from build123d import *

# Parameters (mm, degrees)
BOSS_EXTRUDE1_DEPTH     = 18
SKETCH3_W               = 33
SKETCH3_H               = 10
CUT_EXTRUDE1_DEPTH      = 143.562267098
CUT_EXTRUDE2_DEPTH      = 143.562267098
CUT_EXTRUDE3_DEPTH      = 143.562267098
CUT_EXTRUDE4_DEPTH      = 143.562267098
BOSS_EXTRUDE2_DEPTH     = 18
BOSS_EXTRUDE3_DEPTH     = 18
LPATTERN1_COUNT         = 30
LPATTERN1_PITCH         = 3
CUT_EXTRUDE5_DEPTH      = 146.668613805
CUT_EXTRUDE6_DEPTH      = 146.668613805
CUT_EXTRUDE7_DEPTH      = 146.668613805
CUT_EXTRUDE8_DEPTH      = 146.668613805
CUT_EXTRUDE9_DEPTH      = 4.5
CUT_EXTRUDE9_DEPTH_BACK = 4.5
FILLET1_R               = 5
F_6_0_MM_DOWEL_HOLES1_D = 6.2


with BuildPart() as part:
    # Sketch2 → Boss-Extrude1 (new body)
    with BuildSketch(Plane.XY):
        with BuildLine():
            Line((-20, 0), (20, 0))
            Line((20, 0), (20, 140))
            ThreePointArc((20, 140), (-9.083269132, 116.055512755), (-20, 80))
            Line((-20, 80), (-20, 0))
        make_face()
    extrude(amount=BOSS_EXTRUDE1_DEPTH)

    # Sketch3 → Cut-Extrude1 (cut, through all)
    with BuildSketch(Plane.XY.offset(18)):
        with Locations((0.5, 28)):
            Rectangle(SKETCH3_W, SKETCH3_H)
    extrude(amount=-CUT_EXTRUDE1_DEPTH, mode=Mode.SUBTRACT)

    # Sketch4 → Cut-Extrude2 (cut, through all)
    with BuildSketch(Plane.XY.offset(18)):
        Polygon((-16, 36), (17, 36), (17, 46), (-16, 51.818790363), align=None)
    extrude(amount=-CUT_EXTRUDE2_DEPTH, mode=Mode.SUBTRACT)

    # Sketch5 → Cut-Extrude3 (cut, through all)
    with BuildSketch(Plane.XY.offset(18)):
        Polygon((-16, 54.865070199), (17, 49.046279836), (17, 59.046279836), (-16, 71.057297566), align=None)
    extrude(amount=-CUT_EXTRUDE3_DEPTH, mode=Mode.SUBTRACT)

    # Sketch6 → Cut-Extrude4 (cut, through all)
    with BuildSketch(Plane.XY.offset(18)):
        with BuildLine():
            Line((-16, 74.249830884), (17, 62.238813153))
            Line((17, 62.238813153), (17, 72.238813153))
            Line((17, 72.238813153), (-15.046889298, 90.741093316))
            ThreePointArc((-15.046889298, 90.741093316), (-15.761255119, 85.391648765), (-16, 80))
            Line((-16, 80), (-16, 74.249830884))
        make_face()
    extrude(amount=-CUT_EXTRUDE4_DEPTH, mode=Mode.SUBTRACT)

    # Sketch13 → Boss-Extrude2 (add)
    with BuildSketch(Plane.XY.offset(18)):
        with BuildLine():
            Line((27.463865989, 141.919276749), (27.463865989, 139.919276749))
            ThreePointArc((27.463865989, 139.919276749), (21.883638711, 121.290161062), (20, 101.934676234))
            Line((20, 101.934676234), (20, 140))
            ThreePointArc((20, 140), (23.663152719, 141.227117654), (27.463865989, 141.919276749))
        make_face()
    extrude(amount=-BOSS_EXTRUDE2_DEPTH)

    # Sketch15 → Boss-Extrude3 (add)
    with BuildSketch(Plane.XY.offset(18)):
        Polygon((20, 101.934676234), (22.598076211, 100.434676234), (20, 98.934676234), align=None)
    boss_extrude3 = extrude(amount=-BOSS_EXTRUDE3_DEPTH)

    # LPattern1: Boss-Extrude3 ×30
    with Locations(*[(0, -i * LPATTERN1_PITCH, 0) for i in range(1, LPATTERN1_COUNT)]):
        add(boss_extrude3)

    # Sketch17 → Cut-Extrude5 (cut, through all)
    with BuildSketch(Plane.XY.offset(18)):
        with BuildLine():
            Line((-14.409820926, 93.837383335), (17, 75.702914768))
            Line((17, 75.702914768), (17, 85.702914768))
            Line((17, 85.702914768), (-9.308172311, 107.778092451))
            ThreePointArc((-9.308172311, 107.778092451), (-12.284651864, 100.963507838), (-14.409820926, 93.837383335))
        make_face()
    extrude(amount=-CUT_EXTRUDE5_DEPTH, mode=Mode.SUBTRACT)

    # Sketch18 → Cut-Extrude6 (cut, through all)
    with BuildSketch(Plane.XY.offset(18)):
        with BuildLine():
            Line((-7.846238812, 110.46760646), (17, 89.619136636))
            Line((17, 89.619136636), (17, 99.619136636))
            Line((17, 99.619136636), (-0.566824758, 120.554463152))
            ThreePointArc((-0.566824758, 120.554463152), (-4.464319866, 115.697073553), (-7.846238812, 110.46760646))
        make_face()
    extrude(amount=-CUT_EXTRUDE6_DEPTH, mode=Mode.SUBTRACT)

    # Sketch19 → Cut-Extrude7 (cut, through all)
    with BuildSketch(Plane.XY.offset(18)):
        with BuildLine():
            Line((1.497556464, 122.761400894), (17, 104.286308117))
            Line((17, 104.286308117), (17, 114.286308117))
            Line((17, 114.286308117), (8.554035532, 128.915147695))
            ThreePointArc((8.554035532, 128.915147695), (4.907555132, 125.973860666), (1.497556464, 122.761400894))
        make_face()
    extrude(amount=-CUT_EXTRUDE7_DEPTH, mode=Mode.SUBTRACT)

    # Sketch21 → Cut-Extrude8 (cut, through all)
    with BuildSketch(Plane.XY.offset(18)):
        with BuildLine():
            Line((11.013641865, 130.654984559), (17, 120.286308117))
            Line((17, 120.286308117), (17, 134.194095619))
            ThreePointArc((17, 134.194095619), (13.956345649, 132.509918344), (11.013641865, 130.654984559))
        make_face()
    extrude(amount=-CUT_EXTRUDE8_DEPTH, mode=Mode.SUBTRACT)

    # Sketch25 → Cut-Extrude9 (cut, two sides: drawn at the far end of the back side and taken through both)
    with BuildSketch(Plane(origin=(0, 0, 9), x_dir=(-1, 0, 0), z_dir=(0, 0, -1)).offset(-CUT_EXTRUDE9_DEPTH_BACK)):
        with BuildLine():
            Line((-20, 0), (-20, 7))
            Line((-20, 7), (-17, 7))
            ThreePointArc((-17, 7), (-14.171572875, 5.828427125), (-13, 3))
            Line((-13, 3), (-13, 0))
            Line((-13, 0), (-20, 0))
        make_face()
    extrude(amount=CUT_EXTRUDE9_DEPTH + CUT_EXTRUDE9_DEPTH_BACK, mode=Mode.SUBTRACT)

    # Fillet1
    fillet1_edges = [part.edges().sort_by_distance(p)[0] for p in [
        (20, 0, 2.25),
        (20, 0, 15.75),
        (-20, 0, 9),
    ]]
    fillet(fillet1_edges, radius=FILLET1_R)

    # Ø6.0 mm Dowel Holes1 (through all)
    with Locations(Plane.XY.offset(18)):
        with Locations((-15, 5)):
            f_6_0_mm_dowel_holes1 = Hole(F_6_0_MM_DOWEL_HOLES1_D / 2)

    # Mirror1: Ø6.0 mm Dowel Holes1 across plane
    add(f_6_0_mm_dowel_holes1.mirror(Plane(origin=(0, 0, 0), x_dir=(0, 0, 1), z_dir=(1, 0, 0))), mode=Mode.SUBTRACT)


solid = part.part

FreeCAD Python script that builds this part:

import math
import FreeCAD as App
import Part
import Sketcher

V = App.Vector
Q = App.Units.Quantity


def edges_at(feature, points):
    """Names of the edges that pass closest to the given points."""
    edges = feature.Shape.Edges
    near = lambda p: min(range(len(edges)), key=lambda i: edges[i].distToShape(Part.Vertex(*p))[0])
    return sorted({f"Edge{near(p) + 1}" for p in points})

doc = App.newDocument("Part")
body = doc.addObject("PartDesign::Body", "Body")

# Sketch on XY plane
sketch1 = body.newObject("Sketcher::SketchObject", "Sketch")
sketch1.AttachmentSupport = (doc.getObject("XY_Plane"), [""])
sketch1.MapMode = "FlatFace"
sketch1.addGeometry(Part.LineSegment(V(-20, 0, 0), V(20, 0, 0)), False)
sketch1.addGeometry(Part.LineSegment(V(20, 0, 0), V(20, 140, 0)), False)
sketch1.addGeometry(Part.ArcOfCircle(Part.Circle(V(45, 80, 0), V(0, 0, 1), 65), math.radians(113), math.radians(180)), False)
sketch1.addGeometry(Part.LineSegment(V(-20, 80, 0), V(-20, 0, 0)), False)
sketch1.addConstraint(Sketcher.Constraint("Coincident", 0, 2, 1, 1))
sketch1.addConstraint(Sketcher.Constraint("Coincident", 1, 2, 2, 1))
sketch1.addConstraint(Sketcher.Constraint("Tangent", 2, 2, 3, 1))
sketch1.addConstraint(Sketcher.Constraint("Coincident", 3, 2, 0, 1))
sketch1.addConstraint(Sketcher.Constraint("Horizontal", 0))
sketch1.addConstraint(Sketcher.Constraint("Vertical", 1))
sketch1.addConstraint(Sketcher.Constraint("Vertical", 3))
sketch1.addConstraint(Sketcher.Constraint("Symmetric", 0, 2, 3, 2, -1, 1))
sketch1.addConstraint(Sketcher.Constraint("Radius", 2, Q("65 mm")))
sketch1.addConstraint(Sketcher.Constraint("DistanceX", 0, 1, 0, 2, Q("40 mm")))
sketch1.addConstraint(Sketcher.Constraint("DistanceY", 1, 1, 1, 2, Q("140 mm")))
pad1 = body.newObject("PartDesign::Pad", "Pad")
pad1.Profile = sketch1
pad1.Length = 18

# Sketch on XY plane
sketch2 = body.newObject("Sketcher::SketchObject", "Sketch001")
sketch2.AttachmentSupport = (doc.getObject("XY_Plane"), [""])
sketch2.MapMode = "FlatFace"
sketch2.AttachmentOffset = App.Placement(V(0, 0, 18), App.Rotation())
sketch2.addGeometry(Part.LineSegment(V(-16, 33, 0), V(-16, 23, 0)), False)
sketch2.addGeometry(Part.LineSegment(V(-16, 23, 0), V(17, 23, 0)), False)
sketch2.addGeometry(Part.LineSegment(V(17, 23, 0), V(17, 33, 0)), False)
sketch2.addGeometry(Part.LineSegment(V(17, 33, 0), V(-16, 33, 0)), False)
sketch2.addConstraint(Sketcher.Constraint("Coincident", 0, 2, 1, 1))
sketch2.addConstraint(Sketcher.Constraint("Coincident", 1, 2, 2, 1))
sketch2.addConstraint(Sketcher.Constraint("Coincident", 2, 2, 3, 1))
sketch2.addConstraint(Sketcher.Constraint("Coincident", 3, 2, 0, 1))
sketch2.addConstraint(Sketcher.Constraint("Vertical", 0))
sketch2.addConstraint(Sketcher.Constraint("Horizontal", 1))
sketch2.addConstraint(Sketcher.Constraint("Vertical", 2))
sketch2.addConstraint(Sketcher.Constraint("Horizontal", 3))
sketch2.addConstraint(Sketcher.Constraint("DistanceX", 1, 1, 1, 2, Q("33 mm")))
sketch2.addConstraint(Sketcher.Constraint("DistanceY", 0, 2, 0, 1, Q("10 mm")))
sketch2.addConstraint(Sketcher.Constraint("DistanceX", 0, 2, -1, 1, Q("16 mm")))
sketch2.addConstraint(Sketcher.Constraint("DistanceY", -1, 1, 0, 2, Q("23 mm")))
pocket1 = body.newObject("PartDesign::Pocket", "Pocket")
pocket1.Profile = sketch2
pocket1.Type = "ThroughAll"

# Sketch on XY plane
sketch3 = body.newObject("Sketcher::SketchObject", "Sketch002")
sketch3.AttachmentSupport = (doc.getObject("XY_Plane"), [""])
sketch3.MapMode = "FlatFace"
sketch3.AttachmentOffset = App.Placement(V(0, 0, 18), App.Rotation())
sketch3.addGeometry(Part.LineSegment(V(-16, 36, 0), V(17, 36, 0)), False)
sketch3.addGeometry(Part.LineSegment(V(17, 36, 0), V(17, 46, 0)), False)
sketch3.addGeometry(Part.LineSegment(V(17, 46, 0), V(-16, 52, 0)), False)
sketch3.addGeometry(Part.LineSegment(V(-16, 52, 0), V(-16, 36, 0)), False)
sketch3.addConstraint(Sketcher.Constraint("Coincident", 0, 2, 1, 1))
sketch3.addConstraint(Sketcher.Constraint("Coincident", 1, 2, 2, 1))
sketch3.addConstraint(Sketcher.Constraint("Coincident", 2, 2, 3, 1))
sketch3.addConstraint(Sketcher.Constraint("Coincident", 3, 2, 0, 1))
sketch3.addConstraint(Sketcher.Constraint("Horizontal", 0))
sketch3.addConstraint(Sketcher.Constraint("Vertical", 1))
sketch3.addConstraint(Sketcher.Constraint("Vertical", 3))
sketch3.addConstraint(Sketcher.Constraint("DistanceX", 0, 1, 0, 2, Q("33 mm")))
sketch3.addConstraint(Sketcher.Constraint("DistanceY", 1, 1, 1, 2, Q("10 mm")))
sketch3.addConstraint(Sketcher.Constraint("Angle", 2, Q("170 deg")))
sketch3.addConstraint(Sketcher.Constraint("DistanceX", -1, 1, 0, 2, Q("17 mm")))
sketch3.addConstraint(Sketcher.Constraint("DistanceY", -1, 1, 0, 2, Q("36 mm")))
pocket2 = body.newObject("PartDesign::Pocket", "Pocket001")
pocket2.Profile = sketch3
pocket2.Type = "ThroughAll"

# Sketch on XY plane
sketch4 = body.newObject("Sketcher::SketchObject", "Sketch003")
sketch4.AttachmentSupport = (doc.getObject("XY_Plane"), [""])
sketch4.MapMode = "FlatFace"
sketch4.AttachmentOffset = App.Placement(V(0, 0, 18), App.Rotation())
sketch4.addGeometry(Part.LineSegment(V(-16, 55, 0), V(17, 49, 0)), False)
sketch4.addGeometry(Part.LineSegment(V(17, 49, 0), V(17, 59, 0)), False)
sketch4.addGeometry(Part.LineSegment(V(17, 59, 0), V(-16, 71, 0)), False)
sketch4.addGeometry(Part.LineSegment(V(-16, 71, 0), V(-16, 55, 0)), False)
sketch4.addConstraint(Sketcher.Constraint("Coincident", 0, 2, 1, 1))
sketch4.addConstraint(Sketcher.Constraint("Coincident", 1, 2, 2, 1))
sketch4.addConstraint(Sketcher.Constraint("Coincident", 2, 2, 3, 1))
sketch4.addConstraint(Sketcher.Constraint("Coincident", 3, 2, 0, 1))
sketch4.addConstraint(Sketcher.Constraint("Vertical", 1))
sketch4.addConstraint(Sketcher.Constraint("Vertical", 3))
sketch4.addConstraint(Sketcher.Constraint("DistanceY", 1, 1, 1, 2, Q("10 mm")))
sketch4.addConstraint(Sketcher.Constraint("Angle", 0, Q("-10 deg")))
sketch4.addConstraint(Sketcher.Constraint("Angle", 2, Q("160 deg")))
sketch4.addConstraint(Sketcher.Constraint("DistanceX", -1, 1, 0, 2, Q("17 mm")))
sketch4.addConstraint(Sketcher.Constraint("DistanceX", 2, 2, -1, 1, Q("16 mm")))
sketch4.addConstraint(Sketcher.Constraint("DistanceY", -1, 1, 0, 2, Q("49.04628 mm")))
pocket3 = body.newObject("PartDesign::Pocket", "Pocket002")
pocket3.Profile = sketch4
pocket3.Type = "ThroughAll"

# Sketch on XY plane
sketch5 = body.newObject("Sketcher::SketchObject", "Sketch004")
sketch5.AttachmentSupport = (doc.getObject("XY_Plane"), [""])
sketch5.MapMode = "FlatFace"
sketch5.AttachmentOffset = App.Placement(V(0, 0, 18), App.Rotation())
sketch5.addGeometry(Part.LineSegment(V(-16, 74, 0), V(17, 62, 0)), False)
sketch5.addGeometry(Part.LineSegment(V(17, 62, 0), V(17, 72, 0)), False)
sketch5.addGeometry(Part.LineSegment(V(17, 72, 0), V(-15, 91, 0)), False)
sketch5.addGeometry(Part.ArcOfCircle(Part.Circle(V(45, 80, 0), V(0, 0, 1), 61), math.radians(169.86), math.radians(180)), False)
sketch5.addGeometry(Part.LineSegment(V(-16, 80, 0), V(-16, 74, 0)), False)
sketch5.addConstraint(Sketcher.Constraint("Coincident", 0, 2, 1, 1))
sketch5.addConstraint(Sketcher.Constraint("Coincident", 1, 2, 2, 1))
sketch5.addConstraint(Sketcher.Constraint("Coincident", 2, 2, 3, 1))
sketch5.addConstraint(Sketcher.Constraint("Tangent", 3, 2, 4, 1))
sketch5.addConstraint(Sketcher.Constraint("Coincident", 4, 2, 0, 1))
sketch5.addConstraint(Sketcher.Constraint("Vertical", 1))
sketch5.addConstraint(Sketcher.Constraint("Vertical", 4))
sketch5.addConstraint(Sketcher.Constraint("Radius", 3, Q("61 mm")))
sketch5.addConstraint(Sketcher.Constraint("DistanceY", 1, 1, 1, 2, Q("10 mm")))
sketch5.addConstraint(Sketcher.Constraint("Angle", 0, Q("-20 deg")))
sketch5.addConstraint(Sketcher.Constraint("Angle", 2, Q("150 deg")))
sketch5.addConstraint(Sketcher.Constraint("DistanceX", -1, 1, 3, 3, Q("45 mm")))
sketch5.addConstraint(Sketcher.Constraint("DistanceY", -1, 1, 3, 3, Q("80 mm")))
sketch5.addConstraint(Sketcher.Constraint("DistanceX", -1, 1, 0, 2, Q("17 mm")))
sketch5.addConstraint(Sketcher.Constraint("DistanceY", 4, 2, 4, 1, Q("5.750169 mm")))
pocket4 = body.newObject("PartDesign::Pocket", "Pocket003")
pocket4.Profile = sketch5
pocket4.Type = "ThroughAll"

# Sketch on XY plane
sketch6 = body.newObject("Sketcher::SketchObject", "Sketch005")
sketch6.AttachmentSupport = (doc.getObject("XY_Plane"), [""])
sketch6.MapMode = "FlatFace"
sketch6.AttachmentOffset = App.Placement(V(0, 0, 18), App.Rotation())
sketch6.addGeometry(Part.LineSegment(V(27.5, 139.9, 0), V(27.5, 141.9, 0)), False)
sketch6.addGeometry(Part.ArcOfCircle(Part.Circle(V(30.4, 115.1, 0), V(0, 0, 1), 27), math.radians(96.22), math.radians(112.62)), False)
sketch6.addGeometry(Part.LineSegment(V(20, 140, 0), V(20, 101.9, 0)), False)
sketch6.addGeometry(Part.ArcOfCircle(Part.Circle(V(120.4, 101.9, 0), V(0, 0, 1), 100.4), math.radians(158), math.radians(180)), False)
sketch6.addConstraint(Sketcher.Constraint("Coincident", 0, 2, 1, 1))
sketch6.addConstraint(Sketcher.Constraint("Coincident", 1, 2, 2, 1))
sketch6.addConstraint(Sketcher.Constraint("Tangent", 2, 2, 3, 2))
sketch6.addConstraint(Sketcher.Constraint("Coincident", 3, 1, 0, 1))
sketch6.addConstraint(Sketcher.Constraint("Vertical", 0))
sketch6.addConstraint(Sketcher.Constraint("Vertical", 2))
sketch6.addConstraint(Sketcher.Constraint("DistanceY", 0, 1, 0, 2, Q("2 mm")))
sketch6.addConstraint(Sketcher.Constraint("DistanceX", -1, 1, 1, 2, Q("20 mm")))
sketch6.addConstraint(Sketcher.Constraint("DistanceY", -1, 1, 1, 2, Q("140 mm")))
sketch6.addConstraint(Sketcher.Constraint("Radius", 3, Q("100.386259 mm")))
sketch6.addConstraint(Sketcher.Constraint("Radius", 1, Q("27.019438 mm")))
sketch6.addConstraint(Sketcher.Constraint("DistanceY", 3, 3, 0, 2, Q("39.984601 mm")))
sketch6.addConstraint(Sketcher.Constraint("DistanceY", 2, 2, 2, 1, Q("38.065324 mm")))
pad2 = body.newObject("PartDesign::Pad", "Pad001")
pad2.Profile = sketch6
pad2.Length = 18
pad2.Reversed = True

# Sketch on XY plane
sketch7 = body.newObject("Sketcher::SketchObject", "Sketch006")
sketch7.AttachmentSupport = (doc.getObject("XY_Plane"), [""])
sketch7.MapMode = "FlatFace"
sketch7.AttachmentOffset = App.Placement(V(0, 0, 18), App.Rotation())
sketch7.addGeometry(Part.LineSegment(V(22.6, 100.4, 0), V(20, 101.9, 0)), False)
sketch7.addGeometry(Part.LineSegment(V(20, 101.9, 0), V(20, 98.9, 0)), False)
sketch7.addGeometry(Part.LineSegment(V(20, 98.9, 0), V(22.6, 100.4, 0)), False)
sketch7.addConstraint(Sketcher.Constraint("Coincident", 0, 2, 1, 1))
sketch7.addConstraint(Sketcher.Constraint("Coincident", 1, 2, 2, 1))
sketch7.addConstraint(Sketcher.Constraint("Coincident", 2, 2, 0, 1))
sketch7.addConstraint(Sketcher.Constraint("Vertical", 1))
sketch7.addConstraint(Sketcher.Constraint("Equal", 0, 2))
sketch7.addConstraint(Sketcher.Constraint("DistanceY", 1, 2, 1, 1, Q("3 mm")))
sketch7.addConstraint(Sketcher.Constraint("Angle", 0, Q("150 deg")))
sketch7.addConstraint(Sketcher.Constraint("DistanceX", -1, 1, 0, 2, Q("20 mm")))
sketch7.addConstraint(Sketcher.Constraint("DistanceY", -1, 1, 0, 2, Q("101.934676 mm")))
pad3 = body.newObject("PartDesign::Pad", "Pad002")
pad3.Profile = sketch7
pad3.Length = 18
pad3.Reversed = True
doc.recompute()

linearpattern = body.newObject("PartDesign::LinearPattern", "LinearPattern")
linearpattern.Originals = [pad3]
linearpattern.Direction = (doc.getObject("Y_Axis"), [""])
linearpattern.Mode = "offset"
linearpattern.Offset = 3
linearpattern.Occurrences = 30
linearpattern.Reversed = True
body.Tip = linearpattern

# Sketch on XY plane
sketch8 = body.newObject("Sketcher::SketchObject", "Sketch007")
sketch8.AttachmentSupport = (doc.getObject("XY_Plane"), [""])
sketch8.MapMode = "FlatFace"
sketch8.AttachmentOffset = App.Placement(V(0, 0, 18), App.Rotation())
sketch8.addGeometry(Part.LineSegment(V(-14, 94, 0), V(17, 76, 0)), False)
sketch8.addGeometry(Part.LineSegment(V(17, 76, 0), V(17, 86, 0)), False)
sketch8.addGeometry(Part.LineSegment(V(17, 86, 0), V(-9, 108, 0)), False)
sketch8.addGeometry(Part.ArcOfCircle(Part.Circle(V(45, 80, 0), V(0, 0, 1), 61), math.radians(152.91), math.radians(166.89)), False)
sketch8.addConstraint(Sketcher.Constraint("Coincident", 0, 2, 1, 1))
sketch8.addConstraint(Sketcher.Constraint("Coincident", 1, 2, 2, 1))
sketch8.addConstraint(Sketcher.Constraint("Coincident", 2, 2, 3, 1))
sketch8.addConstraint(Sketcher.Constraint("Coincident", 3, 2, 0, 1))
sketch8.addConstraint(Sketcher.Constraint("Vertical", 1))
sketch8.addConstraint(Sketcher.Constraint("Radius", 3, Q("61 mm")))
sketch8.addConstraint(Sketcher.Constraint("DistanceY", 1, 1, 1, 2, Q("10 mm")))
sketch8.addConstraint(Sketcher.Constraint("Angle", 0, Q("-30 deg")))
sketch8.addConstraint(Sketcher.Constraint("Angle", 2, Q("140 deg")))
sketch8.addConstraint(Sketcher.Constraint("DistanceX", -1, 1, 3, 3, Q("45 mm")))
sketch8.addConstraint(Sketcher.Constraint("DistanceY", -1, 1, 3, 3, Q("80 mm")))
sketch8.addConstraint(Sketcher.Constraint("DistanceX", -1, 1, 0, 2, Q("17 mm")))
sketch8.addConstraint(Sketcher.Constraint("Distance", 2, Q("34.34288 mm")))
pocket5 = body.newObject("PartDesign::Pocket", "Pocket004")
pocket5.Profile = sketch8
pocket5.Type = "ThroughAll"

# Sketch on XY plane
sketch9 = body.newObject("Sketcher::SketchObject", "Sketch008")
sketch9.AttachmentSupport = (doc.getObject("XY_Plane"), [""])
sketch9.MapMode = "FlatFace"
sketch9.AttachmentOffset = App.Placement(V(0, 0, 18), App.Rotation())
sketch9.addGeometry(Part.LineSegment(V(-8, 110, 0), V(17, 90, 0)), False)
sketch9.addGeometry(Part.LineSegment(V(17, 90, 0), V(17, 100, 0)), False)
sketch9.addGeometry(Part.LineSegment(V(17, 100, 0), V(-1, 121, 0)), False)
sketch9.addGeometry(Part.ArcOfCircle(Part.Circle(V(45, 80, 0), V(0, 0, 1), 61), math.radians(138.33), math.radians(150.04)), False)
sketch9.addConstraint(Sketcher.Constraint("Coincident", 0, 2, 1, 1))
sketch9.addConstraint(Sketcher.Constraint("Coincident", 1, 2, 2, 1))
sketch9.addConstraint(Sketcher.Constraint("Coincident", 2, 2, 3, 1))
sketch9.addConstraint(Sketcher.Constraint("Coincident", 3, 2, 0, 1))
sketch9.addConstraint(Sketcher.Constraint("Vertical", 1))
sketch9.addConstraint(Sketcher.Constraint("Radius", 3, Q("61 mm")))
sketch9.addConstraint(Sketcher.Constraint("DistanceY", 1, 1, 1, 2, Q("10 mm")))
sketch9.addConstraint(Sketcher.Constraint("Angle", 0, Q("-40 deg")))
sketch9.addConstraint(Sketcher.Constraint("Angle", 2, Q("130 deg")))
sketch9.addConstraint(Sketcher.Constraint("DistanceX", -1, 1, 3, 3, Q("45 mm")))
sketch9.addConstraint(Sketcher.Constraint("DistanceY", -1, 1, 3, 3, Q("80 mm")))
sketch9.addConstraint(Sketcher.Constraint("DistanceX", -1, 1, 0, 2, Q("17 mm")))
sketch9.addConstraint(Sketcher.Constraint("Distance", 0, Q("32.434461 mm")))
pocket6 = body.newObject("PartDesign::Pocket", "Pocket005")
pocket6.Profile = sketch9
pocket6.Type = "ThroughAll"

# Sketch on XY plane
sketch10 = body.newObject("Sketcher::SketchObject", "Sketch009")
sketch10.AttachmentSupport = (doc.getObject("XY_Plane"), [""])
sketch10.MapMode = "FlatFace"
sketch10.AttachmentOffset = App.Placement(V(0, 0, 18), App.Rotation())
sketch10.addGeometry(Part.LineSegment(V(1, 123, 0), V(17, 104, 0)), False)
sketch10.addGeometry(Part.LineSegment(V(17, 104, 0), V(17, 114, 0)), False)
sketch10.addGeometry(Part.LineSegment(V(17, 114, 0), V(9, 129, 0)), False)
sketch10.addGeometry(Part.ArcOfCircle(Part.Circle(V(45, 80, 0), V(0, 0, 1), 61), math.radians(126.69), math.radians(135.49)), False)
sketch10.addConstraint(Sketcher.Constraint("Coincident", 0, 2, 1, 1))
sketch10.addConstraint(Sketcher.Constraint("Coincident", 1, 2, 2, 1))
sketch10.addConstraint(Sketcher.Constraint("Coincident", 2, 2, 3, 1))
sketch10.addConstraint(Sketcher.Constraint("Coincident", 3, 2, 0, 1))
sketch10.addConstraint(Sketcher.Constraint("Vertical", 1))
sketch10.addConstraint(Sketcher.Constraint("Radius", 3, Q("61 mm")))
sketch10.addConstraint(Sketcher.Constraint("DistanceY", 1, 1, 1, 2, Q("10 mm")))
sketch10.addConstraint(Sketcher.Constraint("Angle", 0, Q("-50 deg")))
sketch10.addConstraint(Sketcher.Constraint("Angle", 2, Q("120 deg")))
sketch10.addConstraint(Sketcher.Constraint("DistanceX", -1, 1, 3, 3, Q("45 mm")))
sketch10.addConstraint(Sketcher.Constraint("DistanceY", -1, 1, 3, 3, Q("80 mm")))
sketch10.addConstraint(Sketcher.Constraint("DistanceX", -1, 1, 0, 2, Q("17 mm")))
sketch10.addConstraint(Sketcher.Constraint("DistanceY", -1, 1, 3, 2, Q("122.761401 mm")))
pocket7 = body.newObject("PartDesign::Pocket", "Pocket006")
pocket7.Profile = sketch10
pocket7.Type = "ThroughAll"

# Sketch on XY plane
sketch11 = body.newObject("Sketcher::SketchObject", "Sketch010")
sketch11.AttachmentSupport = (doc.getObject("XY_Plane"), [""])
sketch11.MapMode = "FlatFace"
sketch11.AttachmentOffset = App.Placement(V(0, 0, 18), App.Rotation())
sketch11.addGeometry(Part.LineSegment(V(11, 131, 0), V(17, 120, 0)), False)
sketch11.addGeometry(Part.LineSegment(V(17, 120, 0), V(17, 134, 0)), False)
sketch11.addGeometry(Part.ArcOfCircle(Part.Circle(V(45, 80, 0), V(0, 0, 1), 61), math.radians(117.32), math.radians(123.86)), False)
sketch11.addConstraint(Sketcher.Constraint("Coincident", 0, 2, 1, 1))
sketch11.addConstraint(Sketcher.Constraint("Coincident", 1, 2, 2, 1))
sketch11.addConstraint(Sketcher.Constraint("Coincident", 2, 2, 0, 1))
sketch11.addConstraint(Sketcher.Constraint("Vertical", 1))
sketch11.addConstraint(Sketcher.Constraint("Radius", 2, Q("61 mm")))
sketch11.addConstraint(Sketcher.Constraint("Angle", 0, Q("-60 deg")))
sketch11.addConstraint(Sketcher.Constraint("DistanceX", -1, 1, 2, 3, Q("45 mm")))
sketch11.addConstraint(Sketcher.Constraint("DistanceY", -1, 1, 2, 3, Q("80 mm")))
sketch11.addConstraint(Sketcher.Constraint("DistanceX", -1, 1, 0, 2, Q("17 mm")))
sketch11.addConstraint(Sketcher.Constraint("DistanceY", 1, 1, 1, 2, Q("13.907788 mm")))
pocket8 = body.newObject("PartDesign::Pocket", "Pocket007")
pocket8.Profile = sketch11
pocket8.Type = "ThroughAll"

# Sketch on XY plane
sketch12 = body.newObject("Sketcher::SketchObject", "Sketch011")
sketch12.AttachmentSupport = (doc.getObject("XY_Plane"), [""])
sketch12.MapMode = "FlatFace"
sketch12.AttachmentOffset = App.Placement(V(0, 0, 9), App.Rotation())
sketch12.addGeometry(Part.LineSegment(V(20, 7, 0), V(20, 0, 0)), False)
sketch12.addGeometry(Part.LineSegment(V(20, 0, 0), V(13, 0, 0)), False)
sketch12.addGeometry(Part.LineSegment(V(13, 0, 0), V(13, 3, 0)), False)
sketch12.addGeometry(Part.ArcOfCircle(Part.Circle(V(17, 3, 0), V(0, 0, 1), 4), math.radians(90), math.radians(180)), False)
sketch12.addGeometry(Part.LineSegment(V(17, 7, 0), V(20, 7, 0)), False)
sketch12.addConstraint(Sketcher.Constraint("Coincident", 0, 2, 1, 1))
sketch12.addConstraint(Sketcher.Constraint("Coincident", 1, 2, 2, 1))
sketch12.addConstraint(Sketcher.Constraint("Tangent", 2, 2, 3, 2))
sketch12.addConstraint(Sketcher.Constraint("Tangent", 3, 1, 4, 1))
sketch12.addConstraint(Sketcher.Constraint("Coincident", 4, 2, 0, 1))
sketch12.addConstraint(Sketcher.Constraint("Vertical", 0))
sketch12.addConstraint(Sketcher.Constraint("Horizontal", 1))
sketch12.addConstraint(Sketcher.Constraint("Vertical", 2))
sketch12.addConstraint(Sketcher.Constraint("Horizontal", 4))
sketch12.addConstraint(Sketcher.Constraint("PointOnObject", 0, 2, -1))
sketch12.addConstraint(Sketcher.Constraint("Equal", 1, 0))
sketch12.addConstraint(Sketcher.Constraint("Radius", 3, Q("4 mm")))
sketch12.addConstraint(Sketcher.Constraint("DistanceX", 1, 2, 1, 1, Q("7 mm")))
sketch12.addConstraint(Sketcher.Constraint("DistanceX", -1, 1, 3, 3, Q("17 mm")))
pocket9 = body.newObject("PartDesign::Pocket", "Pocket008")
pocket9.Profile = sketch12
pocket9.Type = "TwoLengths"
pocket9.Length = 4.5
pocket9.Length2 = 4.5
doc.recompute()

fillet = body.newObject("PartDesign::Fillet", "Fillet")
fillet.Base = (pocket9, edges_at(pocket9, [(20, 0, 2.25), (20, 0, 15.75), (-20, 0, 9)]))
fillet.Radius = 5

# Sketch on XY plane
sketch13 = body.newObject("Sketcher::SketchObject", "Sketch012")
sketch13.AttachmentSupport = (doc.getObject("XY_Plane"), [""])
sketch13.MapMode = "FlatFace"
sketch13.AttachmentOffset = App.Placement(V(0, 0, 18), App.Rotation())
sketch13.addGeometry(Part.Circle(V(-15, 5, 0), V(0, 0, 1), 3.1), False)
sketch13.addConstraint(Sketcher.Constraint("Diameter", 0, Q("6.2 mm")))
sketch13.addConstraint(Sketcher.Constraint("DistanceX", 0, 3, -1, 1, Q("15 mm")))
sketch13.addConstraint(Sketcher.Constraint("DistanceY", -1, 1, 0, 3, Q("5 mm")))
doc.recompute()
hole = body.newObject("PartDesign::Hole", "Hole")
hole.Profile = sketch13
hole.ThreadType = "None"
hole.Diameter = 6.2
hole.DepthType = "ThroughAll"
doc.recompute()

mirrored = body.newObject("PartDesign::Mirrored", "Mirrored")
mirrored.Originals = [hole]
mirrored.MirrorPlane = (doc.getObject("YZ_Plane"), [""])
body.Tip = mirrored

doc.recompute()
